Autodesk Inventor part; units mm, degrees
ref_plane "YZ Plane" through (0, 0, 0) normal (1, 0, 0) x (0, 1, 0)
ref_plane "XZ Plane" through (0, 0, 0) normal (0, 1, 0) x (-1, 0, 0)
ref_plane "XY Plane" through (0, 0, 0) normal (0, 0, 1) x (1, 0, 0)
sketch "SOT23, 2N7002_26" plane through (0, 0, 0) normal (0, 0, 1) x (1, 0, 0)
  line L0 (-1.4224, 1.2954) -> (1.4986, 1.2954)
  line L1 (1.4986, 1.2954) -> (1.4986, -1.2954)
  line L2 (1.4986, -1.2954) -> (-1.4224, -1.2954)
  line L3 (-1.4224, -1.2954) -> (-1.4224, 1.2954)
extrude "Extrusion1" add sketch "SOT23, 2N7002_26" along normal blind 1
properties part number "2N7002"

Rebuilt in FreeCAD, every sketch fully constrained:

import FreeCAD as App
import Part
import Sketcher
Q = App.Units.Quantity

doc = App.newDocument("Part")
body = doc.addObject("PartDesign::Body", "Body")

sketch1 = body.newObject("Sketcher::SketchObject", "Sketch")
sketch1.AttachmentSupport = (doc.getObject("XY_Plane"), [""])
sketch1.MapMode = "FlatFace"
sketch1.addGeometry(Part.LineSegment(App.Vector(1.4986, 1.2954, 0), App.Vector(-1.4224, 1.2954, 0)), False)
sketch1.addGeometry(Part.LineSegment(App.Vector(-1.4224, 1.2954, 0), App.Vector(-1.4224, -1.2954, 0)), False)
sketch1.addGeometry(Part.LineSegment(App.Vector(-1.4224, -1.2954, 0), App.Vector(1.4986, -1.2954, 0)), False)
sketch1.addGeometry(Part.LineSegment(App.Vector(1.4986, -1.2954, 0), App.Vector(1.4986, 1.2954, 0)), False)
sketch1.addConstraint(Sketcher.Constraint("Coincident", 0, 2, 1, 1))
sketch1.addConstraint(Sketcher.Constraint("Coincident", 1, 2, 2, 1))
sketch1.addConstraint(Sketcher.Constraint("Coincident", 2, 2, 3, 1))
sketch1.addConstraint(Sketcher.Constraint("Coincident", 3, 2, 0, 1))
sketch1.addConstraint(Sketcher.Constraint("Horizontal", 0))
sketch1.addConstraint(Sketcher.Constraint("Vertical", 1))
sketch1.addConstraint(Sketcher.Constraint("Horizontal", 2))
sketch1.addConstraint(Sketcher.Constraint("Vertical", 3))
sketch1.addConstraint(Sketcher.Constraint("DistanceX", 0, 2, 0, 1, Q("0.115 in")))
sketch1.addConstraint(Sketcher.Constraint("DistanceY", 1, 2, 1, 1, Q("0.102 in")))
sketch1.addConstraint(Sketcher.Constraint("DistanceX", 0, 2, -1, 1, Q("0.056 in")))
sketch1.addConstraint(Sketcher.Constraint("DistanceY", -1, 1, 0, 2, Q("0.051 in")))
pad1 = body.newObject("PartDesign::Pad", "Pad")
pad1.Profile = sketch1
pad1.Length = 1

doc.recompute()
